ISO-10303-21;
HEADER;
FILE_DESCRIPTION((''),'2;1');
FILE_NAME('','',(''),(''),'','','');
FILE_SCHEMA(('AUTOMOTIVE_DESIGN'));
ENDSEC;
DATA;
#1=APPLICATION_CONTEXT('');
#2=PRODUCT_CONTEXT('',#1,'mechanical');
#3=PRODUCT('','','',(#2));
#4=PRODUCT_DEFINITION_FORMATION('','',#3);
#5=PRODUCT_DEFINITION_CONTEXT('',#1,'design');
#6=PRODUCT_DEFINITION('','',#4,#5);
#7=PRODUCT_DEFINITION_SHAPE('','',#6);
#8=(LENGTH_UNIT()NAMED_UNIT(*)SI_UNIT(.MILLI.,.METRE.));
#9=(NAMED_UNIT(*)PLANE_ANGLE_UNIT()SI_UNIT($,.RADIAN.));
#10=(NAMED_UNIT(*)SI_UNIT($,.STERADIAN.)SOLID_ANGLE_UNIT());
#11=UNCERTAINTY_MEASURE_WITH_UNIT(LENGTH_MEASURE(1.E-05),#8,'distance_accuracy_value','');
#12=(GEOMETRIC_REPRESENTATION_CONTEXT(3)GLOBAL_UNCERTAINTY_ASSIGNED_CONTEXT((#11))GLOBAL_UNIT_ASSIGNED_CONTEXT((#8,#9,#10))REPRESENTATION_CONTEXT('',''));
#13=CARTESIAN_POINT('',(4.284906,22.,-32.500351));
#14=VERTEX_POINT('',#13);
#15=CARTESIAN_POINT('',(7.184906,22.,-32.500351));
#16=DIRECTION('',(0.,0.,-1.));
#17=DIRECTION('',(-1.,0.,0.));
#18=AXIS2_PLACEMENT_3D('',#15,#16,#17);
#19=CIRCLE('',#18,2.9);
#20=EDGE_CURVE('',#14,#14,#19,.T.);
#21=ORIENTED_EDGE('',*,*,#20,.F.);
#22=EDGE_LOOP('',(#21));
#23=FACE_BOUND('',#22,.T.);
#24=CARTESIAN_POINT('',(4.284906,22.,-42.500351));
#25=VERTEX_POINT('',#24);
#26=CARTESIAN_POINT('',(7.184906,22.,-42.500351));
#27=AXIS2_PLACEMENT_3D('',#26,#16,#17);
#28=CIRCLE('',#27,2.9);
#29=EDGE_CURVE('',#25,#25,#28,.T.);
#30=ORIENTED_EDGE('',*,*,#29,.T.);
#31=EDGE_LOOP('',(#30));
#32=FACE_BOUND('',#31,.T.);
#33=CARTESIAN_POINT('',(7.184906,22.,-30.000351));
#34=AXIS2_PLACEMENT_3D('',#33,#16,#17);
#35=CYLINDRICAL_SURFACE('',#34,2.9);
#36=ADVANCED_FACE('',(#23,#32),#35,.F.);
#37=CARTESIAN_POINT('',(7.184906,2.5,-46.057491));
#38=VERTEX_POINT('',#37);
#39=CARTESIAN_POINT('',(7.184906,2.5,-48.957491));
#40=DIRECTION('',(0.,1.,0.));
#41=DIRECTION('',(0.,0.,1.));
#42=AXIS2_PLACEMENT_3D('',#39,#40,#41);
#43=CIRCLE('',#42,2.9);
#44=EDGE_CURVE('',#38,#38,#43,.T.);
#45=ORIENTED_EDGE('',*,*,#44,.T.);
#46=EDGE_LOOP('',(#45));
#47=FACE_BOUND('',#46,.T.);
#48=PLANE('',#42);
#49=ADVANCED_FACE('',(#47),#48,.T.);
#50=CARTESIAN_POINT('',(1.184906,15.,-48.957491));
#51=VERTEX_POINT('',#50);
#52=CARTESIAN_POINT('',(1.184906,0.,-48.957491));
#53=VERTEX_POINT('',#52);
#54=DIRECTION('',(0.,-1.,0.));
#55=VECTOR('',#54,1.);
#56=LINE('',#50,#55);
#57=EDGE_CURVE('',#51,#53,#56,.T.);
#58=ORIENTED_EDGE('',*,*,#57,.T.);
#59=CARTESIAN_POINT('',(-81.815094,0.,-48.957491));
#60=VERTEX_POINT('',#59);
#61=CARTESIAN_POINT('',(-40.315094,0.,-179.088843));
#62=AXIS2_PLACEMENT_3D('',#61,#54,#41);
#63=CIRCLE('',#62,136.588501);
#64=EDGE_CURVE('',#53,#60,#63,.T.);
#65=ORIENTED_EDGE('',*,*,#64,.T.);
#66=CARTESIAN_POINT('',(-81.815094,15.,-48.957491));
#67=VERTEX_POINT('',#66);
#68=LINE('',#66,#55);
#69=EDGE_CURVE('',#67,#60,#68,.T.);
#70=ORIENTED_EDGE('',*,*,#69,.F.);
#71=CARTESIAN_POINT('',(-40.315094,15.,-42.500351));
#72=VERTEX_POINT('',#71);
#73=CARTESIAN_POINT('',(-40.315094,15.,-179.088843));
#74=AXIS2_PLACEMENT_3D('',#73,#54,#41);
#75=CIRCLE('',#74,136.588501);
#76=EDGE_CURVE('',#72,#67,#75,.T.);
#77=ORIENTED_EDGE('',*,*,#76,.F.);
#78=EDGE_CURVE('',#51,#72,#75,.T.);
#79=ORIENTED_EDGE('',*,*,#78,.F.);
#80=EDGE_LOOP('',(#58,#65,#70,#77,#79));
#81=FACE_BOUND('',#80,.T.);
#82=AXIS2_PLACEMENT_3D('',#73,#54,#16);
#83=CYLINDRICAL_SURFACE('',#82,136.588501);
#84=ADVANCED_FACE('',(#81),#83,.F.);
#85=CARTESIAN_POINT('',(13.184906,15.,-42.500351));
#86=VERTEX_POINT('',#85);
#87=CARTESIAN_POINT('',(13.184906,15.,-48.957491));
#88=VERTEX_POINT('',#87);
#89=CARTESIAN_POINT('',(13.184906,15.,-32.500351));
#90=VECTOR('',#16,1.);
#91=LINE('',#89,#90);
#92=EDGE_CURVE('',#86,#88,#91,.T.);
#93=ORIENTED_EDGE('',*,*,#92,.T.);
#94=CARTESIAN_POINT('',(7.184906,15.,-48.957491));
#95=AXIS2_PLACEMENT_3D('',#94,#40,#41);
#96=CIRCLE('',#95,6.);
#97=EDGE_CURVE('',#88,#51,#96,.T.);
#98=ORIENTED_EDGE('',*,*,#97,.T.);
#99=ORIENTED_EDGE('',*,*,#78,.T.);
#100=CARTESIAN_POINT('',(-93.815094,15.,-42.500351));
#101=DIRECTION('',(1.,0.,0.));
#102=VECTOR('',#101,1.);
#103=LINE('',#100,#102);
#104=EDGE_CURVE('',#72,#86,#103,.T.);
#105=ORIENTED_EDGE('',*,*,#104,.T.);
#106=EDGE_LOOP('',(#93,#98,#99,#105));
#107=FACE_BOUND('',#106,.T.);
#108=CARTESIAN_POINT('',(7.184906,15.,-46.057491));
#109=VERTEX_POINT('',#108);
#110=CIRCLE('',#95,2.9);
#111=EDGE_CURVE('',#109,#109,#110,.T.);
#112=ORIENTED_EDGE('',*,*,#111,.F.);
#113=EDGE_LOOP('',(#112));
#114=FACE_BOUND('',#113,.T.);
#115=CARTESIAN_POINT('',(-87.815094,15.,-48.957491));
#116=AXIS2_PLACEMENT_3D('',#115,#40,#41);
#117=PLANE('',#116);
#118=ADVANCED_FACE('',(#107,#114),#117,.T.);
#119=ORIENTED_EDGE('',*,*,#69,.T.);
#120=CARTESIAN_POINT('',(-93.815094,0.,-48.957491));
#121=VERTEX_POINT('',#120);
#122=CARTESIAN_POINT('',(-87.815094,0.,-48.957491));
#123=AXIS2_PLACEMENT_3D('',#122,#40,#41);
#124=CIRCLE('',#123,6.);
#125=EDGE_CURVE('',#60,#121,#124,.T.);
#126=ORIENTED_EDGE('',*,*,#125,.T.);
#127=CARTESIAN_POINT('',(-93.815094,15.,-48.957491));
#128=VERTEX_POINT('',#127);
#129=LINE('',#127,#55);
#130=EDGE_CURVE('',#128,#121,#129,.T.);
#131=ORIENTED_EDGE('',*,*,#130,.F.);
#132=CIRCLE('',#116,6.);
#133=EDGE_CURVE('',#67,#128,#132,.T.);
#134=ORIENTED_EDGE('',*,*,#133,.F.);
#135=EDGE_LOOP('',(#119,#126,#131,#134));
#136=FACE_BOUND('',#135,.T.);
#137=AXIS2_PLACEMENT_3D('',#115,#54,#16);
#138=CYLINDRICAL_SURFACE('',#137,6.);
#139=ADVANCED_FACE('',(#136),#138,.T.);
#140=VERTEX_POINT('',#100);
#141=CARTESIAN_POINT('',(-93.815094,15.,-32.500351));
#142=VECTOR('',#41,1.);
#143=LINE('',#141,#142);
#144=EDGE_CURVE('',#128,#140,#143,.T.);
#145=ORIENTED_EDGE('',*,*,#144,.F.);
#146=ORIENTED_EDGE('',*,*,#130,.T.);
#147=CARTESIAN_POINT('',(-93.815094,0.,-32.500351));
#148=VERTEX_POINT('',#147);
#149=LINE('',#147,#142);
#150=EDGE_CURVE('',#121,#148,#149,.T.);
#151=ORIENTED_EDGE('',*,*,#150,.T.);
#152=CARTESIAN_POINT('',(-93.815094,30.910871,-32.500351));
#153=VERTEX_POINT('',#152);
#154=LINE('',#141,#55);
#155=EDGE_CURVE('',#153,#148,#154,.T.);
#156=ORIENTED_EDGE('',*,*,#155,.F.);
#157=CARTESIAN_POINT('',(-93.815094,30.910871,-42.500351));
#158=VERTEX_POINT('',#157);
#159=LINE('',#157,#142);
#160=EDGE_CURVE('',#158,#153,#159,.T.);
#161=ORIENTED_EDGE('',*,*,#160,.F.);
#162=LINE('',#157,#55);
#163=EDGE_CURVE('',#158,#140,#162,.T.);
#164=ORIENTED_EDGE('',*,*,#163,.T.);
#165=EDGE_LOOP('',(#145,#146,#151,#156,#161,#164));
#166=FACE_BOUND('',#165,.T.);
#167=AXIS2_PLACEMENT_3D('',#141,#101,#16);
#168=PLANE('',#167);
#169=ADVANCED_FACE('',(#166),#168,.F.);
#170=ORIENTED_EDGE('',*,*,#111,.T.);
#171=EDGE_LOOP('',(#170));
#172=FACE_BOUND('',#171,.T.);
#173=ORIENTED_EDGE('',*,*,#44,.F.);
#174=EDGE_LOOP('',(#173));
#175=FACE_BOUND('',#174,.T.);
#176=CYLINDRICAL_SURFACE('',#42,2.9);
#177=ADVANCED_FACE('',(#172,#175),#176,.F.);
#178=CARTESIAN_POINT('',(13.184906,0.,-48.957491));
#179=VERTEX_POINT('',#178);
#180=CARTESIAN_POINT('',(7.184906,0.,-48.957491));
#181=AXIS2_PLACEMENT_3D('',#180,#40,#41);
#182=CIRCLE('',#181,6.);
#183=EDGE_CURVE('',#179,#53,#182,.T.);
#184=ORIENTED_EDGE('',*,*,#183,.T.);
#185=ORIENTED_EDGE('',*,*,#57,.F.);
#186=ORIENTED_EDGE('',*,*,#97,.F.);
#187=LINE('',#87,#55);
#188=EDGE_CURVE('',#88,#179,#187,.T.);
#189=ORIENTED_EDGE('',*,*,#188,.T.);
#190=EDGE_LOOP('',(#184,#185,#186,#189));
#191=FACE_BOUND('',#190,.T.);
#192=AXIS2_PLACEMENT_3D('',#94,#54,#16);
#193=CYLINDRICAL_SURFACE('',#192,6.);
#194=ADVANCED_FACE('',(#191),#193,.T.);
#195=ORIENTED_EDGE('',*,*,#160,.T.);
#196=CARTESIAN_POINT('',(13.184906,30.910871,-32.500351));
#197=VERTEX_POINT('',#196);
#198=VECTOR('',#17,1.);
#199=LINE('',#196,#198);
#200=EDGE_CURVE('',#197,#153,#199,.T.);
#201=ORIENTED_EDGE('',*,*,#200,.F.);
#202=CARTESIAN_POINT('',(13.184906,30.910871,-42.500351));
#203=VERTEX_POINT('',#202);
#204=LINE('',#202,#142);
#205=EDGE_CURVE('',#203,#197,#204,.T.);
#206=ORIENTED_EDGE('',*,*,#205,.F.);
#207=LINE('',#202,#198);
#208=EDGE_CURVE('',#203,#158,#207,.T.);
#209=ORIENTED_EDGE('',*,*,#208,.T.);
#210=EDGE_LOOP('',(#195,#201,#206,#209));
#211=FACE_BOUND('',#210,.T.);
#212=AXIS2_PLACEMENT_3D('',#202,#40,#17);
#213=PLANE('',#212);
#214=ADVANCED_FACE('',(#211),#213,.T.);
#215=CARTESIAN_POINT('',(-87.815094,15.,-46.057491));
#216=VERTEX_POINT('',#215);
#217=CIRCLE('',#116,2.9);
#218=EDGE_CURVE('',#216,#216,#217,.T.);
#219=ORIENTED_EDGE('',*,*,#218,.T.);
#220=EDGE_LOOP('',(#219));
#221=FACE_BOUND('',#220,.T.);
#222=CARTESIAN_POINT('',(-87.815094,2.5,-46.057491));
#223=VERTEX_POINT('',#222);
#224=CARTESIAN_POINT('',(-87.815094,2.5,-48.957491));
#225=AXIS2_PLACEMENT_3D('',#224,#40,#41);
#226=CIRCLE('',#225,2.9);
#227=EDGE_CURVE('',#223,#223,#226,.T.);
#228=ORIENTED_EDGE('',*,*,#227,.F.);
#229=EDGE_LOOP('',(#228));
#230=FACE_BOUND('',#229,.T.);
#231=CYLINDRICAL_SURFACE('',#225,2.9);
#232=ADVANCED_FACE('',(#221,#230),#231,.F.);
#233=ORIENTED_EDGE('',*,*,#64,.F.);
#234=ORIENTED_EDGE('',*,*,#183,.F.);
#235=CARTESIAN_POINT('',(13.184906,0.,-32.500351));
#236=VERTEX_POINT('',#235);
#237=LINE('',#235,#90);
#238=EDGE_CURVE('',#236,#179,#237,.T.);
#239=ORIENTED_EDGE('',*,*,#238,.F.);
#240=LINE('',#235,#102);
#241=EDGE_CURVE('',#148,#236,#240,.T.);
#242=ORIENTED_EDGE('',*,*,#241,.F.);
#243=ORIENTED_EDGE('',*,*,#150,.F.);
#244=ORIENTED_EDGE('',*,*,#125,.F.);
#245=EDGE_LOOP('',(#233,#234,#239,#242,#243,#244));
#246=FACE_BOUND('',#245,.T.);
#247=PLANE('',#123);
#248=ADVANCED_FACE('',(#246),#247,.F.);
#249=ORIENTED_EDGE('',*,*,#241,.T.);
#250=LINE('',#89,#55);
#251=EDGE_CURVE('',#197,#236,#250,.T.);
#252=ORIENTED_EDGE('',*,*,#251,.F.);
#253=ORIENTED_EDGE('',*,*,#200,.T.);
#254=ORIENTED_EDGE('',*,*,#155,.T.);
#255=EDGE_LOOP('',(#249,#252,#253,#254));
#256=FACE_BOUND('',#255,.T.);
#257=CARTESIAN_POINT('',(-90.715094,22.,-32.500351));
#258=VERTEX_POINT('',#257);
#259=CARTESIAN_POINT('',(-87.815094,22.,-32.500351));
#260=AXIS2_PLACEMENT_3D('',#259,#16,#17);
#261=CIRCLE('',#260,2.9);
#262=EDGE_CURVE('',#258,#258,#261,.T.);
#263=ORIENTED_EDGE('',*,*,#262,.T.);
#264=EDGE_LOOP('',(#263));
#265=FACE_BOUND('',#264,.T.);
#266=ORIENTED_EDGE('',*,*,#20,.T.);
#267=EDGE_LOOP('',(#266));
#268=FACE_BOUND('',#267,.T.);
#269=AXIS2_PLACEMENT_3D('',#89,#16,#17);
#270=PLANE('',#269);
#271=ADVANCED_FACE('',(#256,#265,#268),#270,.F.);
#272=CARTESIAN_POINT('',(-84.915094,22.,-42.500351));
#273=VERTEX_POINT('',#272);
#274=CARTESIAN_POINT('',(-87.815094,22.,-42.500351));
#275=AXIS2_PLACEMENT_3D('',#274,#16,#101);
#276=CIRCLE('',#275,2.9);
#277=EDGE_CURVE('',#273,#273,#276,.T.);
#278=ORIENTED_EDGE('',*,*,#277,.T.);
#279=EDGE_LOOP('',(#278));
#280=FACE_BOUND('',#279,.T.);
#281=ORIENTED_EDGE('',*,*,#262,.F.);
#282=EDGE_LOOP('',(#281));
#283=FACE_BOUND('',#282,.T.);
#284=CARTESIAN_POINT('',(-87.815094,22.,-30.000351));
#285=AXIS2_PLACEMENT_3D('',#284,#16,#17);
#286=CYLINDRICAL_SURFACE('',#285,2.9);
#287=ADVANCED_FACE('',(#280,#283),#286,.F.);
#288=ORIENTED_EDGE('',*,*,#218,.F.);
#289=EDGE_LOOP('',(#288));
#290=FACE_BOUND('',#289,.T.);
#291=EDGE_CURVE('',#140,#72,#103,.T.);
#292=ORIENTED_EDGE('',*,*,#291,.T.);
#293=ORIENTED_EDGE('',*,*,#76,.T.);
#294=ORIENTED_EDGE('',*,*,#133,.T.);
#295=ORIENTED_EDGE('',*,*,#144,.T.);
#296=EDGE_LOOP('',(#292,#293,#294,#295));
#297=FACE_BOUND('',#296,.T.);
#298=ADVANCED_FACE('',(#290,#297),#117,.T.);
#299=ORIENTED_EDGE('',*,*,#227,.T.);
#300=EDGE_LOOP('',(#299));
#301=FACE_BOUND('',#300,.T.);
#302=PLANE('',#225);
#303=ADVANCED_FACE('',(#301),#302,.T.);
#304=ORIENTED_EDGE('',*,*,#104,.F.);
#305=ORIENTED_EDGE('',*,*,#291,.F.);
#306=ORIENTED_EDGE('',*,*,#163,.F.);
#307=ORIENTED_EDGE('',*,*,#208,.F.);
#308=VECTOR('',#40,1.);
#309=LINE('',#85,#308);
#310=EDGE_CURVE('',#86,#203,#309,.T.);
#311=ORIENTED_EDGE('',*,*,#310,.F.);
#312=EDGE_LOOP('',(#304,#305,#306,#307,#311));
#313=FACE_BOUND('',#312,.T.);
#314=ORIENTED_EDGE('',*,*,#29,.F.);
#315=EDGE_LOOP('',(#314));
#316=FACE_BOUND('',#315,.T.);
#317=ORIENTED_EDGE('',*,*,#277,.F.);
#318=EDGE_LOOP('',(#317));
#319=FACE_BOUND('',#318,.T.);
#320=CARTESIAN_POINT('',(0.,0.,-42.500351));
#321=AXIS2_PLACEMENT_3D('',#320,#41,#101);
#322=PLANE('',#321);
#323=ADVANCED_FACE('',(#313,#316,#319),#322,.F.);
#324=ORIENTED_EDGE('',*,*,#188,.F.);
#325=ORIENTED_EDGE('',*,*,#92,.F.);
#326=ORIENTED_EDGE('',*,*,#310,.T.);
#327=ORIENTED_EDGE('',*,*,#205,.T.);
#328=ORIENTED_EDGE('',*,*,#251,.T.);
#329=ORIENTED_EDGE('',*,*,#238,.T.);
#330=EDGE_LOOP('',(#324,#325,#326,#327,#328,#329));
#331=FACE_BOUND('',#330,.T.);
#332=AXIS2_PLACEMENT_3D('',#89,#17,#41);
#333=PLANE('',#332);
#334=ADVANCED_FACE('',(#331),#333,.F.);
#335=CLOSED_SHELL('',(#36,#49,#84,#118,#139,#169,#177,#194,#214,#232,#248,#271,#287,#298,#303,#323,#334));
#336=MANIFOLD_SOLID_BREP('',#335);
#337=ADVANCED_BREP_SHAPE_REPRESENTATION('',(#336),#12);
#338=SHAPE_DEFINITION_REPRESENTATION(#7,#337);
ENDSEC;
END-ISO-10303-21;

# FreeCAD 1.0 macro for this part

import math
import FreeCAD as App
import Part
import Sketcher

doc = App.newDocument("Part")
body = doc.addObject("PartDesign::Body", "Body")

# Sketch on XZ plane
sketch1 = body.newObject("Sketcher::SketchObject", "Sketch")
sketch1.AttachmentSupport = (doc.getObject("XZ_Plane"), [""])
sketch1.MapMode = "FlatFace"
sketch1.addGeometry(Part.LineSegment(App.Vector(-93.815094, -32.500351, 0), App.Vector(13.184906, -32.500351, 0)), False)
sketch1.addGeometry(Part.LineSegment(App.Vector(13.184906, -32.500351, 0), App.Vector(13.184906, -48.957491, 0)), False)
sketch1.addGeometry(Part.ArcOfCircle(Part.Circle(App.Vector(7.184906, -48.957491, 0), App.Vector(0, 0, 1), 6), math.radians(180), math.radians(360)), False)
sketch1.addGeometry(Part.ArcOfCircle(Part.Circle(App.Vector(-40.315094, -179.088843, 0), App.Vector(0, 0, 1), 136.588501), math.radians(72.312073), math.radians(107.687927)), False)
sketch1.addGeometry(Part.ArcOfCircle(Part.Circle(App.Vector(-87.815094, -48.957491, 0), App.Vector(0, 0, 1), 6), math.radians(180), math.radians(360)), False)
sketch1.addGeometry(Part.LineSegment(App.Vector(-93.815094, -48.957491, 0), App.Vector(-93.815094, -32.500351, 0)), False)
sketch1.addConstraint(Sketcher.Constraint("Coincident", 0, 2, 1, 1))
sketch1.addConstraint(Sketcher.Constraint("Tangent", 1, 2, 2, 2))
sketch1.addConstraint(Sketcher.Constraint("Coincident", 2, 1, 3, 1))
sketch1.addConstraint(Sketcher.Constraint("Coincident", 3, 2, 4, 2))
sketch1.addConstraint(Sketcher.Constraint("Tangent", 4, 1, 5, 1))
sketch1.addConstraint(Sketcher.Constraint("Coincident", 5, 2, 0, 1))
sketch1.addConstraint(Sketcher.Constraint("Horizontal", 0))
sketch1.addConstraint(Sketcher.Constraint("Vertical", 1))
sketch1.addConstraint(Sketcher.Constraint("Vertical", 5))
sketch1.addConstraint(Sketcher.Constraint("Equal", 2, 4))
sketch1.addConstraint(Sketcher.Constraint("Horizontal", 2, 3, 4, 3))
sketch1.addConstraint(Sketcher.Constraint("Horizontal", 1, 2, 2, 1))
sketch1.addConstraint(Sketcher.Constraint("Horizontal", 2, 1, 3, 2))
sketch1.addConstraint(Sketcher.Constraint("Radius", 2, 6.0))
sketch1.addConstraint(Sketcher.Constraint("DistanceX", 0, 1, 0, 2, 107.0))
sketch1.addConstraint(Sketcher.Constraint("Radius", 3, 136.588501))
sketch1.addConstraint(Sketcher.Constraint("DistanceY", 1, 2, 1, 1, 16.45714))
sketch1.addConstraint(Sketcher.Constraint("DistanceY", 2, 3, -1, 1, 48.957491))
sketch1.addConstraint(Sketcher.Constraint("DistanceX", -1, 1, 2, 3, 7.184906))
pad1 = body.newObject("PartDesign::Pad", "Pad")
pad1.Profile = sketch1
pad1.Length = 15
pad1.Reversed = True

# Sketch on XY plane
sketch2 = body.newObject("Sketcher::SketchObject", "Sketch001")
sketch2.AttachmentSupport = (doc.getObject("XY_Plane"), [""])
sketch2.MapMode = "FlatFace"
sketch2.AttachmentOffset = App.Placement(App.Vector(0, 0, -32.500351), App.Rotation())
sketch2.addGeometry(Part.LineSegment(App.Vector(-93.815094, 30.910871, 0), App.Vector(-93.815094, 15, 0)), False)
sketch2.addGeometry(Part.LineSegment(App.Vector(-93.815094, 15, 0), App.Vector(13.184906, 15, 0)), False)
sketch2.addGeometry(Part.LineSegment(App.Vector(13.184906, 15, 0), App.Vector(13.184906, 30.910871, 0)), False)
sketch2.addGeometry(Part.LineSegment(App.Vector(13.184906, 30.910871, 0), App.Vector(-93.815094, 30.910871, 0)), False)
sketch2.addConstraint(Sketcher.Constraint("Coincident", 0, 2, 1, 1))
sketch2.addConstraint(Sketcher.Constraint("Coincident", 1, 2, 2, 1))
sketch2.addConstraint(Sketcher.Constraint("Coincident", 2, 2, 3, 1))
sketch2.addConstraint(Sketcher.Constraint("Coincident", 3, 2, 0, 1))
sketch2.addConstraint(Sketcher.Constraint("Vertical", 0))
sketch2.addConstraint(Sketcher.Constraint("Horizontal", 1))
sketch2.addConstraint(Sketcher.Constraint("Vertical", 2))
sketch2.addConstraint(Sketcher.Constraint("Horizontal", 3))
sketch2.addConstraint(Sketcher.Constraint("DistanceX", 1, 1, 1, 2, 107.0))
sketch2.addConstraint(Sketcher.Constraint("DistanceY", -1, 1, 0, 2, 15.0))
sketch2.addConstraint(Sketcher.Constraint("DistanceY", 0, 2, 0, 1, 15.910871))
sketch2.addConstraint(Sketcher.Constraint("DistanceX", 0, 2, -1, 1, 93.815094))
pad2 = body.newObject("PartDesign::Pad", "Pad001")
pad2.Profile = sketch2
pad2.Length = 10
pad2.Reversed = True

# Sketch on XZ plane
sketch3 = body.newObject("Sketcher::SketchObject", "Sketch002")
sketch3.AttachmentSupport = (doc.getObject("XZ_Plane"), [""])
sketch3.MapMode = "FlatFace"
sketch3.AttachmentOffset = App.Placement(App.Vector(0, 0, -15), App.Rotation())
sketch3.addGeometry(Part.Circle(App.Vector(7.184906, -48.957491, 0), App.Vector(0, 0, 1), 2.9), False)
sketch3.addGeometry(Part.Circle(App.Vector(-87.815094, -48.957491, 0), App.Vector(0, 0, 1), 2.9), False)
sketch3.addConstraint(Sketcher.Constraint("Equal", 0, 1))
sketch3.addConstraint(Sketcher.Constraint("Horizontal", 0, 3, 1, 3))
sketch3.addConstraint(Sketcher.Constraint("Diameter", 0, 5.8))
sketch3.addConstraint(Sketcher.Constraint("DistanceX", 1, 3, 0, 3, 95.0))
sketch3.addConstraint(Sketcher.Constraint("DistanceY", 0, 3, -1, 1, 48.957491))
sketch3.addConstraint(Sketcher.Constraint("DistanceX", -1, 1, 0, 3, 7.184906))
pocket1 = body.newObject("PartDesign::Pocket", "Pocket")
pocket1.Profile = sketch3
pocket1.Length = 12.5
pocket1.Reversed = True

# Sketch on XY plane
sketch4 = body.newObject("Sketcher::SketchObject", "Sketch003")
sketch4.AttachmentSupport = (doc.getObject("XY_Plane"), [""])
sketch4.MapMode = "FlatFace"
sketch4.AttachmentOffset = App.Placement(App.Vector(0, 0, -42.500351), App.Rotation())
sketch4.addGeometry(Part.Circle(App.Vector(7.184906, 22, 0), App.Vector(0, 0, 1), 2.9), False)
sketch4.addGeometry(Part.Circle(App.Vector(-87.815094, 22, 0), App.Vector(0, 0, 1), 2.9), False)
sketch4.addConstraint(Sketcher.Constraint("Equal", 0, 1))
sketch4.addConstraint(Sketcher.Constraint("Horizontal", 0, 3, 1, 3))
sketch4.addConstraint(Sketcher.Constraint("Diameter", 0, 5.8))
sketch4.addConstraint(Sketcher.Constraint("DistanceY", -1, 1, 0, 3, 22.0))
sketch4.addConstraint(Sketcher.Constraint("DistanceX", 1, 3, 0, 3, 95.0))
sketch4.addConstraint(Sketcher.Constraint("DistanceX", -1, 1, 0, 3, 7.184906))
pocket2 = body.newObject("PartDesign::Pocket", "Pocket001")
pocket2.Profile = sketch4
pocket2.Length = 12.5
pocket2.Reversed = True

doc.recompute()
